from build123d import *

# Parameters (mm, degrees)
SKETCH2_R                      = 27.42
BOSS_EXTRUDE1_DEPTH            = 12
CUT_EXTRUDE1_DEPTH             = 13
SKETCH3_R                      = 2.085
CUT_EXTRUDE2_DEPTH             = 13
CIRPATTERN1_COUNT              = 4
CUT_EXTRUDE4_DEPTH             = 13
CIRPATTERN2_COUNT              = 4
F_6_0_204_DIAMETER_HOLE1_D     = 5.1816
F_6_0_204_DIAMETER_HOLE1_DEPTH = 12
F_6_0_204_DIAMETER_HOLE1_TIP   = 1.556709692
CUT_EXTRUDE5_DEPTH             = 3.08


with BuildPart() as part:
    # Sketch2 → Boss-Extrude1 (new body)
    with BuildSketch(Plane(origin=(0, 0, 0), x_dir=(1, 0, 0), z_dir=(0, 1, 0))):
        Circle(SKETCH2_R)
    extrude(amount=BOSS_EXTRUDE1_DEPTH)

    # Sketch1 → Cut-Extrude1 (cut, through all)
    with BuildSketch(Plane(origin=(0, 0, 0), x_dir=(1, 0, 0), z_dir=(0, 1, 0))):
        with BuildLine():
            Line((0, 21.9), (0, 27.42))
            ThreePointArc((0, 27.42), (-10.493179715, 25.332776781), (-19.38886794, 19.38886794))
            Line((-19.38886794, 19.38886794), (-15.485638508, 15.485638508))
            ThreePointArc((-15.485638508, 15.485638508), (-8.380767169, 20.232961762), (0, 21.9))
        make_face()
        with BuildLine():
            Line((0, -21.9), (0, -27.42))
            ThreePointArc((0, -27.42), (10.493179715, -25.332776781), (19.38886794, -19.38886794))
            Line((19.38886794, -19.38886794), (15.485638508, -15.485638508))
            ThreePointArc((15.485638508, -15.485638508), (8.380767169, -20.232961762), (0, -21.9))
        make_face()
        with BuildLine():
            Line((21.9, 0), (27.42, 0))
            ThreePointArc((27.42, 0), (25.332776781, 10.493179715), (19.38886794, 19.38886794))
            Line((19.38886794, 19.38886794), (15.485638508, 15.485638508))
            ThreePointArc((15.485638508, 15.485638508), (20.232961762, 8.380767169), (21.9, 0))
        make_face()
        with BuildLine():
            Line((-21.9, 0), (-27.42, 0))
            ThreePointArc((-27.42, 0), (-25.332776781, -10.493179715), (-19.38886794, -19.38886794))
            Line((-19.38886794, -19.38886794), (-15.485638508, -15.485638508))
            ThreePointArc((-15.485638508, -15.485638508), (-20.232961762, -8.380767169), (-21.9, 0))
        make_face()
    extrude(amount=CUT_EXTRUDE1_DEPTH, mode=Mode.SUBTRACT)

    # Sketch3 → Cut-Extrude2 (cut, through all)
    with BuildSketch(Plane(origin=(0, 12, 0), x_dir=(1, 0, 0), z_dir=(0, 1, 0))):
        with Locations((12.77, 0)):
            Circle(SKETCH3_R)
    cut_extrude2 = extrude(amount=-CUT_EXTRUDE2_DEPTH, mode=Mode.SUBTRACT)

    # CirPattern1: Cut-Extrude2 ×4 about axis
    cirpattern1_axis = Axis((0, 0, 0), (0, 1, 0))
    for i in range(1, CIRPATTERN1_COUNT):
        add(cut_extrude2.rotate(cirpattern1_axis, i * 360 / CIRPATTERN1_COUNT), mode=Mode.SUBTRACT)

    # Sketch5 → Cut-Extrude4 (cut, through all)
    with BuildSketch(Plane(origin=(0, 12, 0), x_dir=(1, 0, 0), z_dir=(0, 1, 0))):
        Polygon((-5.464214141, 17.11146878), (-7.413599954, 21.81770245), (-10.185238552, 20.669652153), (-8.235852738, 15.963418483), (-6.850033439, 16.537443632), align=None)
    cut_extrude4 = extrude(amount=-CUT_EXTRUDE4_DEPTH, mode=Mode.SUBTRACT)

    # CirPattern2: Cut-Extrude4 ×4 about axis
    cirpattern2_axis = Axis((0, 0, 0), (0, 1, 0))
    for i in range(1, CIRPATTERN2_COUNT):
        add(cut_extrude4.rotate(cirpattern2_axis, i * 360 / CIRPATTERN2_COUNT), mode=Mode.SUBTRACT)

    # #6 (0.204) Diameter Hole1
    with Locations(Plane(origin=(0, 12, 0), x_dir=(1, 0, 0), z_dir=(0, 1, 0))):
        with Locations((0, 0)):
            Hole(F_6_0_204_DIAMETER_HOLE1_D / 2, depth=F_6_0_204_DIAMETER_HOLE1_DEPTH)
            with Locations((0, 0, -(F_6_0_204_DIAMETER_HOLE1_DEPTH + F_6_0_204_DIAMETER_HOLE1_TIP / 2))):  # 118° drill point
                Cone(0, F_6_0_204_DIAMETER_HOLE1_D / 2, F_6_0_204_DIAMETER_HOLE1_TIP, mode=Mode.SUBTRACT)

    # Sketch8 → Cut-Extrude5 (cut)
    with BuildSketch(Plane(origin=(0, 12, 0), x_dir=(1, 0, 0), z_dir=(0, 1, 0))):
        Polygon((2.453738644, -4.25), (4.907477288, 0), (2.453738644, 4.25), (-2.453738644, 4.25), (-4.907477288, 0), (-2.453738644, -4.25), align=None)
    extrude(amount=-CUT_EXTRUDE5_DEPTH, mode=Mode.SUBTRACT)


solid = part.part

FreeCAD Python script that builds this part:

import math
import FreeCAD as App
import Part
import Sketcher
from FreeCAD import Vector
Q = App.Units.Quantity

doc = App.newDocument("Part")
params = doc.addObject("Spreadsheet::Sheet", "Params")
for row, (alias, value) in enumerate([
    ("sketch1_diameter", "54.84 mm"),
    ("pad1_length", "12 mm"),
    ("sketch2_radius", "21.9 mm"),
    ("sketch2_radius2", "27.42 mm"),
    ("sketch3_diameter", "4.17 mm"),
    ("sketch4_length", "3 mm"),
    ("hole_diameter", "5.1816 mm"),
    ("hole_depth", "12 mm"),
    ("pocket4_length", "3.08 mm"),
], start=1):
    params.set(f"A{row}", alias)
    params.set(f"B{row}", "=" + value)
    params.setAlias(f"B{row}", alias)

body = doc.addObject("PartDesign::Body", "Body")

sketch1 = doc.addObject("Sketcher::SketchObject", "Sketch")
body.addObject(sketch1)
sketch1.AttachmentSupport = (doc.XZ_Plane, [""])
sketch1.MapMode = "FlatFace"
sketch1.addGeometry(Part.Circle(Vector(0, 0, 0), Vector(0, 0, 1), 27), False)
sketch1.addConstraint(Sketcher.Constraint("Coincident", 0, 3, -1, 1))
sketch1.addConstraint(Sketcher.Constraint("Diameter", 0, 54.84))
sketch1.setExpression("Constraints[1]", "Params.sketch1_diameter")
pad1 = doc.addObject("PartDesign::Pad", "Pad")
body.addObject(pad1)
pad1.Profile = sketch1
pad1.setExpression("Length", "Params.pad1_length")
pad1.Reversed = True

sketch2 = doc.addObject("Sketcher::SketchObject", "Sketch001")
body.addObject(sketch2)
sketch2.AttachmentSupport = (doc.XZ_Plane, [""])
sketch2.MapMode = "FlatFace"
sketch2.addGeometry(Part.LineSegment(Vector(0, -22, 0), Vector(0, -27, 0)), False)
sketch2.addGeometry(Part.ArcOfCircle(Part.Circle(Vector(0, 0, 0), Vector(0, 0, 1), 27), math.radians(-135), math.radians(-90)), False)
sketch2.addGeometry(Part.LineSegment(Vector(-19, -19, 0), Vector(-15, -15, 0)), False)
sketch2.addGeometry(Part.ArcOfCircle(Part.Circle(Vector(0, 0, 0), Vector(0, 0, 1), 22), math.radians(-135), math.radians(-90)), False)
sketch2.addGeometry(Part.LineSegment(Vector(0, 22, 0), Vector(0, 27, 0)), False)
sketch2.addGeometry(Part.ArcOfCircle(Part.Circle(Vector(0, 0, 0), Vector(0, 0, 1), 27), math.radians(45), math.radians(90)), False)
sketch2.addGeometry(Part.LineSegment(Vector(19, 19, 0), Vector(15, 15, 0)), False)
sketch2.addGeometry(Part.ArcOfCircle(Part.Circle(Vector(0, 0, 0), Vector(0, 0, 1), 22), math.radians(45), math.radians(90)), False)
sketch2.addGeometry(Part.LineSegment(Vector(22, 0, 0), Vector(27, 0, 0)), False)
sketch2.addGeometry(Part.ArcOfCircle(Part.Circle(Vector(0, 0, 0), Vector(0, 0, 1), 27), math.radians(-45), math.radians(0)), False)
sketch2.addGeometry(Part.LineSegment(Vector(19, -19, 0), Vector(15, -15, 0)), False)
sketch2.addGeometry(Part.ArcOfCircle(Part.Circle(Vector(0, 0, 0), Vector(0, 0, 1), 22), math.radians(-45), math.radians(0)), False)
sketch2.addGeometry(Part.LineSegment(Vector(-22, 0, 0), Vector(-27, 0, 0)), False)
sketch2.addGeometry(Part.ArcOfCircle(Part.Circle(Vector(0, 0, 0), Vector(0, 0, 1), 27), math.radians(135), math.radians(180)), False)
sketch2.addGeometry(Part.LineSegment(Vector(-19, 19, 0), Vector(-15, 15, 0)), False)
sketch2.addGeometry(Part.ArcOfCircle(Part.Circle(Vector(0, 0, 0), Vector(0, 0, 1), 22), math.radians(135), math.radians(180)), False)
sketch2.addConstraint(Sketcher.Constraint("Coincident", 0, 2, 1, 2))
sketch2.addConstraint(Sketcher.Constraint("Coincident", 1, 1, 2, 1))
sketch2.addConstraint(Sketcher.Constraint("Coincident", 2, 2, 3, 1))
sketch2.addConstraint(Sketcher.Constraint("Coincident", 3, 2, 0, 1))
sketch2.addConstraint(Sketcher.Constraint("Coincident", 4, 2, 5, 2))
sketch2.addConstraint(Sketcher.Constraint("Coincident", 5, 1, 6, 1))
sketch2.addConstraint(Sketcher.Constraint("Coincident", 6, 2, 7, 1))
sketch2.addConstraint(Sketcher.Constraint("Coincident", 7, 2, 4, 1))
sketch2.addConstraint(Sketcher.Constraint("Coincident", 8, 2, 9, 2))
sketch2.addConstraint(Sketcher.Constraint("Coincident", 9, 1, 10, 1))
sketch2.addConstraint(Sketcher.Constraint("Coincident", 10, 2, 11, 1))
sketch2.addConstraint(Sketcher.Constraint("Coincident", 11, 2, 8, 1))
sketch2.addConstraint(Sketcher.Constraint("Coincident", 12, 2, 13, 2))
sketch2.addConstraint(Sketcher.Constraint("Coincident", 13, 1, 14, 1))
sketch2.addConstraint(Sketcher.Constraint("Coincident", 14, 2, 15, 1))
sketch2.addConstraint(Sketcher.Constraint("Coincident", 15, 2, 12, 1))
sketch2.addConstraint(Sketcher.Constraint("Vertical", 0))
sketch2.addConstraint(Sketcher.Constraint("Vertical", 4))
sketch2.addConstraint(Sketcher.Constraint("Horizontal", 8))
sketch2.addConstraint(Sketcher.Constraint("Horizontal", 12))
sketch2.addConstraint(Sketcher.Constraint("Coincident", 1, 3, -1, 1))
sketch2.addConstraint(Sketcher.Constraint("Coincident", 3, 3, -1, 1))
sketch2.addConstraint(Sketcher.Constraint("Coincident", 5, 3, -1, 1))
sketch2.addConstraint(Sketcher.Constraint("Coincident", 7, 3, -1, 1))
sketch2.addConstraint(Sketcher.Constraint("Coincident", 9, 3, -1, 1))
sketch2.addConstraint(Sketcher.Constraint("Coincident", 11, 3, -1, 1))
sketch2.addConstraint(Sketcher.Constraint("Coincident", 13, 3, -1, 1))
sketch2.addConstraint(Sketcher.Constraint("Coincident", 15, 3, -1, 1))
sketch2.addConstraint(Sketcher.Constraint("Equal", 1, 5))
sketch2.addConstraint(Sketcher.Constraint("Equal", 3, 7))
sketch2.addConstraint(Sketcher.Constraint("Equal", 5, 9))
sketch2.addConstraint(Sketcher.Constraint("Equal", 7, 11))
sketch2.addConstraint(Sketcher.Constraint("Equal", 9, 13))
sketch2.addConstraint(Sketcher.Constraint("Equal", 11, 15))
sketch2.addConstraint(Sketcher.Constraint("PointOnObject", 0, 2, -2))
sketch2.addConstraint(Sketcher.Constraint("PointOnObject", 4, 2, -2))
sketch2.addConstraint(Sketcher.Constraint("PointOnObject", 8, 2, -1))
sketch2.addConstraint(Sketcher.Constraint("PointOnObject", 12, 2, -1))
sketch2.addConstraint(Sketcher.Constraint("Parallel", 2, 6))
sketch2.addConstraint(Sketcher.Constraint("Perpendicular", 6, 10))
sketch2.addConstraint(Sketcher.Constraint("Parallel", 10, 14))
sketch2.addConstraint(Sketcher.Constraint("Horizontal", 1, 1, 9, 1))
sketch2.addConstraint(Sketcher.Constraint("Horizontal", 2, 2, 10, 2))
sketch2.addConstraint(Sketcher.Constraint("Horizontal", 5, 1, 13, 1))
sketch2.addConstraint(Sketcher.Constraint("Vertical", 5, 1, 9, 1))
sketch2.addConstraint(Sketcher.Constraint("Radius", 3, 21.9))
sketch2.addConstraint(Sketcher.Constraint("Radius", 1, 27.42))
sketch2.addConstraint(Sketcher.Constraint("DistanceX", 2, 2, -1, 1, 15.485639))
sketch2.setExpression("Constraints[45]", "Params.sketch2_radius")
sketch2.setExpression("Constraints[46]", "Params.sketch2_radius2")
pocket1 = doc.addObject("PartDesign::Pocket", "Pocket")
body.addObject(pocket1)
pocket1.Profile = sketch2
pocket1.Type = "ThroughAll"

sketch3 = doc.addObject("Sketcher::SketchObject", "Sketch002")
body.addObject(sketch3)
sketch3.AttachmentSupport = (doc.XZ_Plane, [""])
sketch3.MapMode = "FlatFace"
sketch3.AttachmentOffset = App.Placement(Vector(0, 0, -12), App.Rotation())
sketch3.addGeometry(Part.Circle(Vector(12.8, 0, 0), Vector(0, 0, 1), 2.1), False)
sketch3.addConstraint(Sketcher.Constraint("PointOnObject", 0, 3, -1))
sketch3.addConstraint(Sketcher.Constraint("Diameter", 0, 4.17))
sketch3.addConstraint(Sketcher.Constraint("DistanceX", -1, 1, 0, 3, 12.77))
sketch3.setExpression("Constraints[1]", "Params.sketch3_diameter")
pocket2 = doc.addObject("PartDesign::Pocket", "Pocket001")
body.addObject(pocket2)
pocket2.Profile = sketch3
pocket2.Type = "ThroughAll"
pocket2.Reversed = True
doc.recompute()

polarpattern = doc.addObject("PartDesign::PolarPattern", "PolarPattern")
body.addObject(polarpattern)
polarpattern.Originals = [pocket2]
polarpattern.Axis = (doc.Y_Axis, [""])
polarpattern.Angle = 360
polarpattern.Occurrences = 4
body.Tip = polarpattern

sketch4 = doc.addObject("Sketcher::SketchObject", "Sketch003")
body.addObject(sketch4)
sketch4.AttachmentSupport = (doc.XZ_Plane, [""])
sketch4.MapMode = "FlatFace"
sketch4.AttachmentOffset = App.Placement(Vector(0, 0, -12), App.Rotation())
sketch4.addGeometry(Part.LineSegment(Vector(-5.5, -17.1, 0), Vector(-7.4, -21.8, 0)), False)
sketch4.addGeometry(Part.LineSegment(Vector(-7.4, -21.8, 0), Vector(-10.2, -20.7, 0)), False)
sketch4.addGeometry(Part.LineSegment(Vector(-10.2, -20.7, 0), Vector(-8.2, -16, 0)), False)
sketch4.addGeometry(Part.LineSegment(Vector(-8.2, -16, 0), Vector(-6.9, -16.5, 0)), False)
sketch4.addGeometry(Part.LineSegment(Vector(-6.9, -16.5, 0), Vector(-5.5, -17.1, 0)), False)
sketch4.addConstraint(Sketcher.Constraint("Coincident", 0, 2, 1, 1))
sketch4.addConstraint(Sketcher.Constraint("Coincident", 1, 2, 2, 1))
sketch4.addConstraint(Sketcher.Constraint("Coincident", 2, 2, 3, 1))
sketch4.addConstraint(Sketcher.Constraint("Coincident", 3, 2, 4, 1))
sketch4.addConstraint(Sketcher.Constraint("Coincident", 4, 2, 0, 1))
sketch4.addConstraint(Sketcher.Constraint("Perpendicular", 0, 1))
sketch4.addConstraint(Sketcher.Constraint("Perpendicular", 1, 2))
sketch4.addConstraint(Sketcher.Constraint("Perpendicular", 2, 3))
sketch4.addConstraint(Sketcher.Constraint("Parallel", 3, 4))
sketch4.addConstraint(Sketcher.Constraint("Equal", 3, 4))
sketch4.addConstraint(Sketcher.Constraint("Distance", 1, 3.0))
sketch4.addConstraint(Sketcher.Constraint("Angle", 0, Q("-112.5 deg")))
sketch4.addConstraint(Sketcher.Constraint("DistanceX", 0, 2, -1, 1, 7.4136))
sketch4.addConstraint(Sketcher.Constraint("Distance", 0, 5.093991))
sketch4.addConstraint(Sketcher.Constraint("DistanceY", 2, 2, -1, 1, 15.963418))
sketch4.setExpression("Constraints[10]", "Params.sketch4_length")
pocket3 = doc.addObject("PartDesign::Pocket", "Pocket002")
body.addObject(pocket3)
pocket3.Profile = sketch4
pocket3.Type = "ThroughAll"
pocket3.Reversed = True
doc.recompute()

polarpattern2 = doc.addObject("PartDesign::PolarPattern", "PolarPattern001")
body.addObject(polarpattern2)
polarpattern2.Originals = [pocket3]
polarpattern2.Axis = (doc.Y_Axis, [""])
polarpattern2.Angle = 360
polarpattern2.Occurrences = 4
body.Tip = polarpattern2

sketch5 = doc.addObject("Sketcher::SketchObject", "Sketch004")
body.addObject(sketch5)
sketch5.AttachmentSupport = (doc.XZ_Plane, [""])
sketch5.MapMode = "FlatFace"
sketch5.AttachmentOffset = App.Placement(Vector(0, 0, -12), App.Rotation())
sketch5.addGeometry(Part.Circle(Vector(0, 0, 0), Vector(0, 0, 1), 2.6), False)
sketch5.addConstraint(Sketcher.Constraint("Coincident", 0, 3, -1, 1))
sketch5.addConstraint(Sketcher.Constraint("Diameter", 0, 5.1816))
doc.recompute()
hole = doc.addObject("PartDesign::Hole", "Hole")
body.addObject(hole)
hole.Profile = sketch5
hole.ThreadType = "None"
hole.setExpression("Diameter", "Params.hole_diameter")
hole.DepthType = "Dimension"
hole.setExpression("Depth", "Params.hole_depth")
hole.DrillPoint = "Angled"
hole.DrillPointAngle = 118
hole.Reversed = True

sketch6 = doc.addObject("Sketcher::SketchObject", "Sketch005")
body.addObject(sketch6)
sketch6.AttachmentSupport = (doc.XZ_Plane, [""])
sketch6.MapMode = "FlatFace"
sketch6.AttachmentOffset = App.Placement(Vector(0, 0, -12), App.Rotation())
sketch6.addGeometry(Part.LineSegment(Vector(2.5, 4.2, 0), Vector(4.9, 0, 0)), False)
sketch6.addGeometry(Part.LineSegment(Vector(4.9, 0, 0), Vector(2.5, -4.2, 0)), False)
sketch6.addGeometry(Part.LineSegment(Vector(2.5, -4.2, 0), Vector(-2.5, -4.2, 0)), False)
sketch6.addGeometry(Part.LineSegment(Vector(-2.5, -4.2, 0), Vector(-4.9, 0, 0)), False)
sketch6.addGeometry(Part.LineSegment(Vector(-4.9, 0, 0), Vector(-2.5, 4.2, 0)), False)
sketch6.addGeometry(Part.LineSegment(Vector(-2.5, 4.2, 0), Vector(2.5, 4.2, 0)), False)
sketch6.addConstraint(Sketcher.Constraint("Coincident", 0, 2, 1, 1))
sketch6.addConstraint(Sketcher.Constraint("Coincident", 1, 2, 2, 1))
sketch6.addConstraint(Sketcher.Constraint("Coincident", 2, 2, 3, 1))
sketch6.addConstraint(Sketcher.Constraint("Coincident", 3, 2, 4, 1))
sketch6.addConstraint(Sketcher.Constraint("Coincident", 4, 2, 5, 1))
sketch6.addConstraint(Sketcher.Constraint("Coincident", 5, 2, 0, 1))
sketch6.addConstraint(Sketcher.Constraint("Horizontal", 2))
sketch6.addConstraint(Sketcher.Constraint("Horizontal", 5))
sketch6.addConstraint(Sketcher.Constraint("Symmetric", 0, 2, 3, 2, -1, 1))
sketch6.addConstraint(Sketcher.Constraint("Symmetric", 1, 2, 4, 2, -1, 1))
sketch6.addConstraint(Sketcher.Constraint("PointOnObject", 0, 2, -1))
sketch6.addConstraint(Sketcher.Constraint("Parallel", 0, 3))
sketch6.addConstraint(Sketcher.Constraint("Vertical", 2, 2, 4, 2))
sketch6.addConstraint(Sketcher.Constraint("Angle", 0, Q("-60 deg")))
sketch6.addConstraint(Sketcher.Constraint("DistanceY", 2, 2, 4, 2, 8.5))
sketch6.addConstraint(Sketcher.Constraint("DistanceX", 2, 2, 2, 1, 4.907477))
pocket4 = doc.addObject("PartDesign::Pocket", "Pocket003")
body.addObject(pocket4)
pocket4.Profile = sketch6
pocket4.setExpression("Length", "Params.pocket4_length")
pocket4.Reversed = True

doc.recompute()
